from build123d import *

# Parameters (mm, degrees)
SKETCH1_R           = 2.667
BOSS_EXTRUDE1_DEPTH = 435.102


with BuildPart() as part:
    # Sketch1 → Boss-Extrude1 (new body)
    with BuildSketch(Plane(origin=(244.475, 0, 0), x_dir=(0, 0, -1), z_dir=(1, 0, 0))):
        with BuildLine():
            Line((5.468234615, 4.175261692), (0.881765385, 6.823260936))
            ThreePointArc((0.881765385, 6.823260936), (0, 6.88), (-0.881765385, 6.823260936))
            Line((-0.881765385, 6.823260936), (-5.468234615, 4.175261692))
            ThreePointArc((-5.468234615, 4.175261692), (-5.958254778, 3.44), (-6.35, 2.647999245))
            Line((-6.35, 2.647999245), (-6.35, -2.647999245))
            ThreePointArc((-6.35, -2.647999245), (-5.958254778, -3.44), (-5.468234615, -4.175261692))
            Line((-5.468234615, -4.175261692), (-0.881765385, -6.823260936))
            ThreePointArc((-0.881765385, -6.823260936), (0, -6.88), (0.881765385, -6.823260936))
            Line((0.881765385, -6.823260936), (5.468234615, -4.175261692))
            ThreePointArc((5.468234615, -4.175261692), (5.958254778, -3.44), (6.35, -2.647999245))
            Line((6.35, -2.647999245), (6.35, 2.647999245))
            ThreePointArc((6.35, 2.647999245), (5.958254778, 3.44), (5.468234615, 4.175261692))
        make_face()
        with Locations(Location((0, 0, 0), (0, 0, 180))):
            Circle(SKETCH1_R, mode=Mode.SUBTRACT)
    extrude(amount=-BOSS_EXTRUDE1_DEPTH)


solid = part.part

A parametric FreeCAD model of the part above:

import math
import FreeCAD as App
import Part
import Sketcher
Q = App.Units.Quantity

doc = App.newDocument("Part")
params = doc.addObject("Spreadsheet::Sheet", "Params")
for row, (alias, value) in enumerate([
    ("sketch1_diameter", "0.21 in"),
    ("pad1_length", "17.13 in"),
], start=1):
    params.set(f"A{row}", alias)
    params.set(f"B{row}", "=" + value)
    params.setAlias(f"B{row}", alias)

body = doc.addObject("PartDesign::Body", "Body")

# Sketch on YZ plane
sketch1 = body.newObject("Sketcher::SketchObject", "Sketch")
sketch1.AttachmentSupport = (doc.getObject("YZ_Plane"), [""])
sketch1.MapMode = "FlatFace"
sketch1.AttachmentOffset = App.Placement(App.Vector(0, 0, 9.625 * 25.4), App.Rotation())
sketch1.addGeometry(Part.LineSegment(App.Vector(4.2, -5.5, 0), App.Vector(6.8, -0.9, 0)), False)
sketch1.addGeometry(Part.ArcOfCircle(Part.Circle(App.Vector(0, 0, 0), App.Vector(0, 0, 1), 6.9), math.radians(-7.36), math.radians(7.36)), False)
sketch1.addGeometry(Part.LineSegment(App.Vector(6.8, 0.9, 0), App.Vector(4.2, 5.5, 0)), False)
sketch1.addGeometry(Part.ArcOfCircle(Part.Circle(App.Vector(0, 0, 0), App.Vector(0, 0, 1), 6.9), math.radians(52.64), math.radians(67.36)), False)
sketch1.addGeometry(Part.LineSegment(App.Vector(2.6, 6.3, 0), App.Vector(-2.6, 6.3, 0)), False)
sketch1.addGeometry(Part.ArcOfCircle(Part.Circle(App.Vector(0, 0, 0), App.Vector(0, 0, 1), 6.9), math.radians(112.64), math.radians(127.36)), False)
sketch1.addGeometry(Part.LineSegment(App.Vector(-4.2, 5.5, 0), App.Vector(-6.8, 0.9, 0)), False)
sketch1.addGeometry(Part.ArcOfCircle(Part.Circle(App.Vector(0, 0, 0), App.Vector(0, 0, 1), 6.9), math.radians(172.64), math.radians(187.36)), False)
sketch1.addGeometry(Part.LineSegment(App.Vector(-6.8, -0.9, 0), App.Vector(-4.2, -5.5, 0)), False)
sketch1.addGeometry(Part.ArcOfCircle(Part.Circle(App.Vector(0, 0, 0), App.Vector(0, 0, 1), 6.9), math.radians(-127.36), math.radians(-112.64)), False)
sketch1.addGeometry(Part.LineSegment(App.Vector(-2.6, -6.3, 0), App.Vector(2.6, -6.3, 0)), False)
sketch1.addGeometry(Part.ArcOfCircle(Part.Circle(App.Vector(0, 0, 0), App.Vector(0, 0, 1), 6.9), math.radians(-67.36), math.radians(-52.64)), False)
sketch1.addGeometry(Part.Circle(App.Vector(0, 0, 0), App.Vector(0, 0, 1), 2.7), False)
sketch1.addConstraint(Sketcher.Constraint("Coincident", 0, 2, 1, 1))
sketch1.addConstraint(Sketcher.Constraint("Coincident", 1, 2, 2, 1))
sketch1.addConstraint(Sketcher.Constraint("Coincident", 2, 2, 3, 1))
sketch1.addConstraint(Sketcher.Constraint("Coincident", 3, 2, 4, 1))
sketch1.addConstraint(Sketcher.Constraint("Coincident", 4, 2, 5, 1))
sketch1.addConstraint(Sketcher.Constraint("Coincident", 5, 2, 6, 1))
sketch1.addConstraint(Sketcher.Constraint("Coincident", 6, 2, 7, 1))
sketch1.addConstraint(Sketcher.Constraint("Coincident", 7, 2, 8, 1))
sketch1.addConstraint(Sketcher.Constraint("Coincident", 8, 2, 9, 1))
sketch1.addConstraint(Sketcher.Constraint("Coincident", 9, 2, 10, 1))
sketch1.addConstraint(Sketcher.Constraint("Coincident", 10, 2, 11, 1))
sketch1.addConstraint(Sketcher.Constraint("Coincident", 11, 2, 0, 1))
sketch1.addConstraint(Sketcher.Constraint("Horizontal", 4))
sketch1.addConstraint(Sketcher.Constraint("Horizontal", 10))
sketch1.addConstraint(Sketcher.Constraint("Coincident", 1, 3, -1, 1))
sketch1.addConstraint(Sketcher.Constraint("Coincident", 3, 3, -1, 1))
sketch1.addConstraint(Sketcher.Constraint("Coincident", 5, 3, -1, 1))
sketch1.addConstraint(Sketcher.Constraint("Coincident", 7, 3, -1, 1))
sketch1.addConstraint(Sketcher.Constraint("Coincident", 9, 3, -1, 1))
sketch1.addConstraint(Sketcher.Constraint("Coincident", 11, 3, -1, 1))
sketch1.addConstraint(Sketcher.Constraint("Coincident", 12, 3, -1, 1))
sketch1.addConstraint(Sketcher.Constraint("Equal", 1, 3))
sketch1.addConstraint(Sketcher.Constraint("Equal", 3, 5))
sketch1.addConstraint(Sketcher.Constraint("Equal", 5, 7))
sketch1.addConstraint(Sketcher.Constraint("Equal", 7, 9))
sketch1.addConstraint(Sketcher.Constraint("Equal", 9, 11))
sketch1.addConstraint(Sketcher.Constraint("Parallel", 0, 6))
sketch1.addConstraint(Sketcher.Constraint("Parallel", 2, 8))
sketch1.addConstraint(Sketcher.Constraint("Horizontal", 2, 2, 5, 2))
sketch1.addConstraint(Sketcher.Constraint("Horizontal", 1, 2, 6, 2))
sketch1.addConstraint(Sketcher.Constraint("Horizontal", 0, 2, 7, 2))
sketch1.addConstraint(Sketcher.Constraint("Vertical", 0, 2, 1, 2))
sketch1.addConstraint(Sketcher.Constraint("Vertical", 4, 2, 9, 2))
sketch1.addConstraint(Sketcher.Constraint("Diameter", 12, Q("0.21 in")))
sketch1.addConstraint(Sketcher.Constraint("Angle", 0, Q("60 deg")))
sketch1.addConstraint(Sketcher.Constraint("DistanceY", -1, 1, 3, 2, Q("0.25 in")))
sketch1.addConstraint(Sketcher.Constraint("Radius", 1, Q("6.88 mm")))
sketch1.addConstraint(Sketcher.Constraint("DistanceY", 0, 2, 2, 2, Q("0.25 in")))
sketch1.setExpression("Constraints[33]", "Params.sketch1_diameter")
pad1 = body.newObject("PartDesign::Pad", "Pad")
pad1.Profile = sketch1
pad1.setExpression("Length", "Params.pad1_length")
pad1.Reversed = True

doc.recompute()
